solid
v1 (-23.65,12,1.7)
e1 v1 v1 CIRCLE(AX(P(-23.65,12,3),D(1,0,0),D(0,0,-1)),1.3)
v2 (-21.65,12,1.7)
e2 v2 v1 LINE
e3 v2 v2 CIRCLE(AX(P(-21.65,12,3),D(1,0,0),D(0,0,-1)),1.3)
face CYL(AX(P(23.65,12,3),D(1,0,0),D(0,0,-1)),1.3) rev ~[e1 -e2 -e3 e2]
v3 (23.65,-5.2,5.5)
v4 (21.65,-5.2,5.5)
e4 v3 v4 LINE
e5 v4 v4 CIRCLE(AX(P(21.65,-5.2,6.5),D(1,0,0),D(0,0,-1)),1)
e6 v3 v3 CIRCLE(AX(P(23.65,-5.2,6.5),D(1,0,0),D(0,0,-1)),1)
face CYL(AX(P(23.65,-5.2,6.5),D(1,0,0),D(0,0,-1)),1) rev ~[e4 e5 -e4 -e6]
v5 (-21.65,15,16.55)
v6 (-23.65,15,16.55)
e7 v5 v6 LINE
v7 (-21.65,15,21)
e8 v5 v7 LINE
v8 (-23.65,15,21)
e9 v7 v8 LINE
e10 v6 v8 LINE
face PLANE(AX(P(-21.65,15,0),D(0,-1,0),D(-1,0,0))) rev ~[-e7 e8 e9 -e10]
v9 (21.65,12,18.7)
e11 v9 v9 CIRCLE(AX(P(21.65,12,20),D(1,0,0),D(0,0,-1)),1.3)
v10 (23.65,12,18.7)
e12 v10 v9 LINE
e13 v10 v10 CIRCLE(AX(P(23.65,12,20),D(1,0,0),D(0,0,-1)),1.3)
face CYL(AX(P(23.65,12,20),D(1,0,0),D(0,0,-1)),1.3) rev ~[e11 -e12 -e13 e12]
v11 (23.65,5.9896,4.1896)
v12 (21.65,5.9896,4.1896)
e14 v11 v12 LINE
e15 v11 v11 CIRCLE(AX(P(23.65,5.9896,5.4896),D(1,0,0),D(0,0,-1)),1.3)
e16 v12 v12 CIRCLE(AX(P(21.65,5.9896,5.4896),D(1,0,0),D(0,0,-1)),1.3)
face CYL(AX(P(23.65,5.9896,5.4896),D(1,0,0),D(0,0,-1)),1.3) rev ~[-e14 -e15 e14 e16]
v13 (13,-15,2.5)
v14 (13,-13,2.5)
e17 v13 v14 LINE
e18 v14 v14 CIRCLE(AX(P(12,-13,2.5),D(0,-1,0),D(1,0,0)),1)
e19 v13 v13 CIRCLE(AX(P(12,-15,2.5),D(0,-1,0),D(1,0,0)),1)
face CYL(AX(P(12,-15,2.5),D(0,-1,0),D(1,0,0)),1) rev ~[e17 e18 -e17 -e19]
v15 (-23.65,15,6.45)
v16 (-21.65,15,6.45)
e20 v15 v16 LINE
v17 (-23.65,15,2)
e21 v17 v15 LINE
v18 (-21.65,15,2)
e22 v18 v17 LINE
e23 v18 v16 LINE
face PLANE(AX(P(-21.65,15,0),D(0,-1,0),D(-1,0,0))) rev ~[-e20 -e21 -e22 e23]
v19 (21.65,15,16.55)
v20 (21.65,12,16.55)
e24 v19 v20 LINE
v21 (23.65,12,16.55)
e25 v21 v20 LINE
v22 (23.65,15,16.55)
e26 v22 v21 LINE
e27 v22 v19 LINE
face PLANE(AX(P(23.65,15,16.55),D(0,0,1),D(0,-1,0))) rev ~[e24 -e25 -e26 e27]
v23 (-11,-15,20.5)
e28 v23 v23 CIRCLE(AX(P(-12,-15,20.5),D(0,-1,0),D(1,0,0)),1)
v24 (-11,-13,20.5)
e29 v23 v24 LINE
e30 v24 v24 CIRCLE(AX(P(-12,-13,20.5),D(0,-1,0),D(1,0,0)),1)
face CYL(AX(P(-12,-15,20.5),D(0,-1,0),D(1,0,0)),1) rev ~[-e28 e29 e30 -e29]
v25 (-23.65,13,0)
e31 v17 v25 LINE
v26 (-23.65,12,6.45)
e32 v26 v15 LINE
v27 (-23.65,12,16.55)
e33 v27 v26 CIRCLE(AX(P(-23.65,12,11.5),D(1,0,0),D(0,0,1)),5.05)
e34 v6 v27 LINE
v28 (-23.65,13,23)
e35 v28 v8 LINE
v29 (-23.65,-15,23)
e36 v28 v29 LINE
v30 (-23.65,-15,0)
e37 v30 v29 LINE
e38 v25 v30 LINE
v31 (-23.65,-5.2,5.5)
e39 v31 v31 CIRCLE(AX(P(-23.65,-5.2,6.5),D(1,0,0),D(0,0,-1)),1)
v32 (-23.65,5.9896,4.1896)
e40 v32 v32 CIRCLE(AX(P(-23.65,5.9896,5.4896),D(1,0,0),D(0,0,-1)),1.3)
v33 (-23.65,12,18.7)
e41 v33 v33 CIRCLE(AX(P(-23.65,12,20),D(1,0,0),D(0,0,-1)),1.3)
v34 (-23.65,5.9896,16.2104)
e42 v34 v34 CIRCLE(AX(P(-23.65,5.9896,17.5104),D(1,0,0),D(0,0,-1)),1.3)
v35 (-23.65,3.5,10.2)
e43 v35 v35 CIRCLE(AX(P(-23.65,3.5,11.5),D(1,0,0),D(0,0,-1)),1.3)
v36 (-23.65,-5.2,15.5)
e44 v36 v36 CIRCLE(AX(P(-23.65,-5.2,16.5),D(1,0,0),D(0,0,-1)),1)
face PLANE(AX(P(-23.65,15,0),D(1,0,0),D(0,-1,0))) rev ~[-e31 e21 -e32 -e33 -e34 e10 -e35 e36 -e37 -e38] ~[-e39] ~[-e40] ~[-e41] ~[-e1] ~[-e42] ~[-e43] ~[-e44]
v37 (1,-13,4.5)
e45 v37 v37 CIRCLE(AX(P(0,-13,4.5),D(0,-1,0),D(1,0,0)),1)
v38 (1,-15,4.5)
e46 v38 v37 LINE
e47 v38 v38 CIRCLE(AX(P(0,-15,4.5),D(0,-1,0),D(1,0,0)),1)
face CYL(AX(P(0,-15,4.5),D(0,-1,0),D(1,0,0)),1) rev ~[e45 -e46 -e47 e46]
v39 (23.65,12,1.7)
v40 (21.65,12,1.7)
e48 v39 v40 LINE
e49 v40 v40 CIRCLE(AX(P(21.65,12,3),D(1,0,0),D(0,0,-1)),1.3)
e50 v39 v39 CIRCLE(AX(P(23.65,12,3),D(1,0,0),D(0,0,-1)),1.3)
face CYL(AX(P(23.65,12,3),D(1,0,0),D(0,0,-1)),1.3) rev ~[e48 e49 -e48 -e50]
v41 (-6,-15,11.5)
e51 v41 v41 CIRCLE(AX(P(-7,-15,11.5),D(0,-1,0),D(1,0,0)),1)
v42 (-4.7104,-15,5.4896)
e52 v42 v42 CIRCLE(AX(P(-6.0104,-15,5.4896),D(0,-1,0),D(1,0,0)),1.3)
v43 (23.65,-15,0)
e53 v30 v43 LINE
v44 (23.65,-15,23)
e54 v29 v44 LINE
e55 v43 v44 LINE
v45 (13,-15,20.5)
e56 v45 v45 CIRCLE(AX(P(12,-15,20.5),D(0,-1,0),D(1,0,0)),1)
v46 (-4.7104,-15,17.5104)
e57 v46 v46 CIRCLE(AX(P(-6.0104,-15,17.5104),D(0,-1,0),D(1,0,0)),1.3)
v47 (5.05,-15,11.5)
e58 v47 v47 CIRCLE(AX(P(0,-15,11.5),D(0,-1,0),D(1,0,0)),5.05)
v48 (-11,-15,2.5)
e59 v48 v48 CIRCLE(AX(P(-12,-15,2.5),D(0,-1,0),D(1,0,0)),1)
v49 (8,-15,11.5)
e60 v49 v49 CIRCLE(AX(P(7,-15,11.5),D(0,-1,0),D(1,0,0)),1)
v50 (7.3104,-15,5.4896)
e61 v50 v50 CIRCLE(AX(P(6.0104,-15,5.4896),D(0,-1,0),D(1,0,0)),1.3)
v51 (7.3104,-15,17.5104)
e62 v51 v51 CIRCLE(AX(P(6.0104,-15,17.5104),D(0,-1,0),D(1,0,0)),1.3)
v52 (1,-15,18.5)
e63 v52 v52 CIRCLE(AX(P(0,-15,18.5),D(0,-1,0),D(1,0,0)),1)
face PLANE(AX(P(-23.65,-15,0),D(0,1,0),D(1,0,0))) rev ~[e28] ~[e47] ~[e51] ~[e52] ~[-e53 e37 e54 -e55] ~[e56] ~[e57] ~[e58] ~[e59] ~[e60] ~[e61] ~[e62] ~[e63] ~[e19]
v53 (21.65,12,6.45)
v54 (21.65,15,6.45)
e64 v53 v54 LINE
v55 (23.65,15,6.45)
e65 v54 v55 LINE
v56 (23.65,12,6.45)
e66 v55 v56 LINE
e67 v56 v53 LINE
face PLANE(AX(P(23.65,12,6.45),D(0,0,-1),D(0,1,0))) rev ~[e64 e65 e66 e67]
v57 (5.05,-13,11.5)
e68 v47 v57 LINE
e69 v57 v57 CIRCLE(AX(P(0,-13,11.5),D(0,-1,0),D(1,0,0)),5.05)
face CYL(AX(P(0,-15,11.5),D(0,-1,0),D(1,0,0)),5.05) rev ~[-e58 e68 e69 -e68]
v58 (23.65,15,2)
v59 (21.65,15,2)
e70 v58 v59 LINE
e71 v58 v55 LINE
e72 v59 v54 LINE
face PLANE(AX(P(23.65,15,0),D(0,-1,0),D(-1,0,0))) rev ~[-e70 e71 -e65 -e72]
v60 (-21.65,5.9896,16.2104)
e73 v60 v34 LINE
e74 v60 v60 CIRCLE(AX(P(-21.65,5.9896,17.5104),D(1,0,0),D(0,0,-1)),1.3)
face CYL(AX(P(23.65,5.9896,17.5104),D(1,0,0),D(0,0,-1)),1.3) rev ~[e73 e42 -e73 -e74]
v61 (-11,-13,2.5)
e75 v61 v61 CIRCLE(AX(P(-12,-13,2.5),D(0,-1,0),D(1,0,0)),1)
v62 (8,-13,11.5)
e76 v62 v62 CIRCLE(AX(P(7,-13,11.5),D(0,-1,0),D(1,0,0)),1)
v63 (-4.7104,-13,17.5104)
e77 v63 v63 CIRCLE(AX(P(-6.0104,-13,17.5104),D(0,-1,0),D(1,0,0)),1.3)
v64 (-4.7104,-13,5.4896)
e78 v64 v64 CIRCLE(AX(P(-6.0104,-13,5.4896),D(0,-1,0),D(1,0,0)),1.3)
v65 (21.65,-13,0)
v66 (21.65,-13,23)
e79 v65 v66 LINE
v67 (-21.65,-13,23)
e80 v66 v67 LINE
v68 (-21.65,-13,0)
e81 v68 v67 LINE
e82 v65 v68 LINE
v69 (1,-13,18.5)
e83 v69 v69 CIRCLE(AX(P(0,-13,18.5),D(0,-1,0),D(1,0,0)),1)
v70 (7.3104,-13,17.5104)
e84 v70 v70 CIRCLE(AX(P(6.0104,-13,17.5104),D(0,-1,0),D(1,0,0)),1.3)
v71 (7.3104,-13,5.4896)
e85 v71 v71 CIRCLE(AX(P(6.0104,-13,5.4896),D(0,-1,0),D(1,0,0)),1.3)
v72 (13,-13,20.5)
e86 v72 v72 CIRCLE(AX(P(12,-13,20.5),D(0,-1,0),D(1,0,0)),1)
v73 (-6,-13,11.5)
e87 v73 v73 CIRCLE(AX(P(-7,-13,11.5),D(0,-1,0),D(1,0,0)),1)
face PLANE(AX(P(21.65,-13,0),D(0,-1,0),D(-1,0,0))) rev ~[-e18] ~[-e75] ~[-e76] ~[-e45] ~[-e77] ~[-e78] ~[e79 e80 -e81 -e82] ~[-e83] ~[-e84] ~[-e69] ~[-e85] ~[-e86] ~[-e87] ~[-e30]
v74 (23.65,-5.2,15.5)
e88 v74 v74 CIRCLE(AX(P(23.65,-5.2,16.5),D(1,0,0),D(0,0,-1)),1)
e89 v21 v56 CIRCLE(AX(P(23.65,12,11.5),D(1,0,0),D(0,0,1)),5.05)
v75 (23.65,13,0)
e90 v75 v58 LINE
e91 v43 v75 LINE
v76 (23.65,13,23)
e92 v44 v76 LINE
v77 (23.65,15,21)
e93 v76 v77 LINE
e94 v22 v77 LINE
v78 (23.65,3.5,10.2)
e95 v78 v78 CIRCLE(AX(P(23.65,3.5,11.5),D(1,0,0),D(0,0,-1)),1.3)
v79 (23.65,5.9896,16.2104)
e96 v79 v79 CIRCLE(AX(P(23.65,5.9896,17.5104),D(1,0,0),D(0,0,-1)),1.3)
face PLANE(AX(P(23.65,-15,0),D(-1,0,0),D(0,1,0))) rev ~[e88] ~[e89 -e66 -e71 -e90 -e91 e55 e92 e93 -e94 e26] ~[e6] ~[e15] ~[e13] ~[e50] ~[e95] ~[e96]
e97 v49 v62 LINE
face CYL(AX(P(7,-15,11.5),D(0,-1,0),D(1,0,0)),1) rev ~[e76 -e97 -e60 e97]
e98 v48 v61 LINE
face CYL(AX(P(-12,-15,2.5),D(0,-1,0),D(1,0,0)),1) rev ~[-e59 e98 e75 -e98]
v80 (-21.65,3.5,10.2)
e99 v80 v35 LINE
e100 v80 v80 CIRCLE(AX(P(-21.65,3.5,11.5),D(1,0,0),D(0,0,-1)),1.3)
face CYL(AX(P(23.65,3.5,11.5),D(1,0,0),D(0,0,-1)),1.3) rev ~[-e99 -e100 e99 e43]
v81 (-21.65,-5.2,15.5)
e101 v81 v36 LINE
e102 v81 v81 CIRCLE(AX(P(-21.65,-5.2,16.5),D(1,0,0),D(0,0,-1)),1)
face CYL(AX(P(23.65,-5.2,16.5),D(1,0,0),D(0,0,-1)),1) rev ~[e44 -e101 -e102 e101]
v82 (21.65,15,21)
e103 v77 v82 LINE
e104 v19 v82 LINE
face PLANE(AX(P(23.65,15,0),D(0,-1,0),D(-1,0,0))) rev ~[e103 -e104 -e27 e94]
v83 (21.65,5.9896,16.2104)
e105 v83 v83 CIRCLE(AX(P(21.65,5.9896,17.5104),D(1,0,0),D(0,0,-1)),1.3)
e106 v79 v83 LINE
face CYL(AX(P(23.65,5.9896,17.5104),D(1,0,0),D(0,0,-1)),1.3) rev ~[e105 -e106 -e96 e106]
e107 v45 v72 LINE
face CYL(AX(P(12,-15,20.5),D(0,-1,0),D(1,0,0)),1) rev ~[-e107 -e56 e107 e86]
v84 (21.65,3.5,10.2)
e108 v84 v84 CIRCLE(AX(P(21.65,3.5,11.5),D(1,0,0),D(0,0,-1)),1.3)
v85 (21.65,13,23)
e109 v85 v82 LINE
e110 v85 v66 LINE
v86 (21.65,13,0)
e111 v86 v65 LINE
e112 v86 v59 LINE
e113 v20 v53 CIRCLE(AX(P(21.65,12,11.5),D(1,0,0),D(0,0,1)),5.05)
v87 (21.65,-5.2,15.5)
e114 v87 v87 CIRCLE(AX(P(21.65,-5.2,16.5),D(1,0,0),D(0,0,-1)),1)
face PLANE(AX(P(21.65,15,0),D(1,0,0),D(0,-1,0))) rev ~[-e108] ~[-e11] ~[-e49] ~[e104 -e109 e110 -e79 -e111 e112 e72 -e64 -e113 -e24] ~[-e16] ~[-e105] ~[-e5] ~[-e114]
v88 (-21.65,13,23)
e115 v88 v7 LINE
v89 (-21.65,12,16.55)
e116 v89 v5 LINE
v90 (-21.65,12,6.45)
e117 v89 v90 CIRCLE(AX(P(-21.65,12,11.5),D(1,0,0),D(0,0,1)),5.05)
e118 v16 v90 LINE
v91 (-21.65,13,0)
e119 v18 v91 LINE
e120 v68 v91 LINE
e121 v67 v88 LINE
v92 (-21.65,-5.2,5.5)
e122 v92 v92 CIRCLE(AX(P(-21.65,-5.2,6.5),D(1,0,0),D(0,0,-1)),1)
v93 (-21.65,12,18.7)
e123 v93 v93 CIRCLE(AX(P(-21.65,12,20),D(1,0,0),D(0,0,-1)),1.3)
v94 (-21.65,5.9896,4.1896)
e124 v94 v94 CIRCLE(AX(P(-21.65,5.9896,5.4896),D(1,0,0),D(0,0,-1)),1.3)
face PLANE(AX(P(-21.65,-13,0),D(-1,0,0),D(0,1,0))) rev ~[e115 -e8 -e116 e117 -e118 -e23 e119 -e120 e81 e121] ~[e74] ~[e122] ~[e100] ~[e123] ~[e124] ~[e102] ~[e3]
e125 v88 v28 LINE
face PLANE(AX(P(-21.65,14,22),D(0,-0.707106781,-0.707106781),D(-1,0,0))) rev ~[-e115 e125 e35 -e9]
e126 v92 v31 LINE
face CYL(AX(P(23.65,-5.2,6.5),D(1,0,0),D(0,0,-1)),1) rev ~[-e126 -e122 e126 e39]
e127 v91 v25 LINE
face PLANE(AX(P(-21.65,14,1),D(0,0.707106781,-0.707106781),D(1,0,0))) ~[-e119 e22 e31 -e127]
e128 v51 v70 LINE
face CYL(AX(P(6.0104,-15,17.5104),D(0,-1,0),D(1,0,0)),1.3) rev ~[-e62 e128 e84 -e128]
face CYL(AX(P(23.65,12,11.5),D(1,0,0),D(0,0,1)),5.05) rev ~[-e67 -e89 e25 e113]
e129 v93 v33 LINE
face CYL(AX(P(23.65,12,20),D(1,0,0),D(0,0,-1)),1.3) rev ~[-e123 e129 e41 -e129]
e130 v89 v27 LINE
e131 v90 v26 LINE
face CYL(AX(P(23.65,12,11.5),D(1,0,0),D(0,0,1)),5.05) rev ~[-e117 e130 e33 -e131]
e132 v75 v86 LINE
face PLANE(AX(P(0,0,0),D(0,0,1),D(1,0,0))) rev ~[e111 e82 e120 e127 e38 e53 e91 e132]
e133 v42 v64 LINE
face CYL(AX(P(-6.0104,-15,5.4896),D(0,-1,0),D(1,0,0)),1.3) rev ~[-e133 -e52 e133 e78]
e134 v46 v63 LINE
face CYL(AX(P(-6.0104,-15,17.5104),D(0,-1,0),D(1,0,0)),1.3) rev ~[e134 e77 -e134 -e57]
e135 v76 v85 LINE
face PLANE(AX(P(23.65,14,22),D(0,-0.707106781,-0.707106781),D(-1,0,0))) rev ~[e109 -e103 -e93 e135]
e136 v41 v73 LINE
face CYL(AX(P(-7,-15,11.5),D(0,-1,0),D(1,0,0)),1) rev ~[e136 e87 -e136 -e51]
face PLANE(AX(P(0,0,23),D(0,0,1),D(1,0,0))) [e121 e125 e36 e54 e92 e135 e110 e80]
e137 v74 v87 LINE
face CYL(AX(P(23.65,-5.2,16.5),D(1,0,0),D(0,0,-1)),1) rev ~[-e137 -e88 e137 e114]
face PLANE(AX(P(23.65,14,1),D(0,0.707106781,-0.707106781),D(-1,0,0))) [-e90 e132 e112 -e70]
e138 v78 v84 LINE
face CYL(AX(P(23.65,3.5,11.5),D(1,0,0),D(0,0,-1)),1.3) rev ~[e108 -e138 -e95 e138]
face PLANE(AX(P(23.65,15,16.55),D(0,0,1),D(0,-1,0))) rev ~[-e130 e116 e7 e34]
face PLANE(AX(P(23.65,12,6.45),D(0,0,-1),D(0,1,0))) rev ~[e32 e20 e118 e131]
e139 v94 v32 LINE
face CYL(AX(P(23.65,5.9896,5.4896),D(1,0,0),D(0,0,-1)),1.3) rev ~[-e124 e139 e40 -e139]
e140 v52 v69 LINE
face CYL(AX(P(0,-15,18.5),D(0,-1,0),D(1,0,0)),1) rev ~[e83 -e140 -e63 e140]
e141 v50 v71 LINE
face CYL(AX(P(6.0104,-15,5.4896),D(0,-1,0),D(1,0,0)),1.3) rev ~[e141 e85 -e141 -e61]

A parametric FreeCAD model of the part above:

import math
import FreeCAD as App
import Part
import Sketcher

V = App.Vector
Q = App.Units.Quantity


def edges_at(feature, points):
    """Names of the edges that pass closest to the given points."""
    edges = feature.Shape.Edges
    near = lambda p: min(range(len(edges)), key=lambda i: edges[i].distToShape(Part.Vertex(*p))[0])
    return sorted({f"Edge{near(p) + 1}" for p in points})


def add_polygon(sketch, points):
    """Adds a closed chain of lines whose ends are joined by coincident constraints."""
    first, n = sketch.GeometryCount, len(points)
    for a, b in zip(points, points[1:] + points[:1]):
        sketch.addGeometry(Part.LineSegment(App.Vector(*a, 0), App.Vector(*b, 0)), False)
    for i in range(n):
        sketch.addConstraint(Sketcher.Constraint("Coincident", first + i, 2, first + (i + 1) % n, 1))

doc = App.newDocument("Part")
body = doc.addObject("PartDesign::Body", "Body")

sketch1 = body.newObject("Sketcher::SketchObject", "Sketch")
sketch1.AttachmentSupport = (doc.getObject("XY_Plane"), [""])
sketch1.MapMode = "FlatFace"
add_polygon(sketch1, [(-21.6, 15), (-23.6, 15), (-23.6, -15), (23.6, -15), (23.6, 15), (21.6, 15), (21.6, -13), (-21.6, -13)])
sketch1.addConstraint(Sketcher.Constraint("Horizontal", 0))
sketch1.addConstraint(Sketcher.Constraint("Vertical", 1))
sketch1.addConstraint(Sketcher.Constraint("Horizontal", 2))
sketch1.addConstraint(Sketcher.Constraint("Vertical", 3))
sketch1.addConstraint(Sketcher.Constraint("Horizontal", 4))
sketch1.addConstraint(Sketcher.Constraint("Vertical", 5))
sketch1.addConstraint(Sketcher.Constraint("Horizontal", 6))
sketch1.addConstraint(Sketcher.Constraint("Vertical", 7))
sketch1.addConstraint(Sketcher.Constraint("Symmetric", 0, 2, 2, 2, -1, 1))
sketch1.addConstraint(Sketcher.Constraint("Symmetric", 4, 2, 7, 2, -2))
sketch1.addConstraint(Sketcher.Constraint("DistanceX", 0, 2, 0, 1, Q("2 mm")))
sketch1.addConstraint(Sketcher.Constraint("DistanceY", 1, 2, 1, 1, Q("30 mm")))
sketch1.addConstraint(Sketcher.Constraint("DistanceX", 6, 2, 6, 1, Q("43.3 mm")))
sketch1.addConstraint(Sketcher.Constraint("DistanceY", 2, 2, 5, 2, Q("2 mm")))
pad1 = body.newObject("PartDesign::Pad", "Pad")
pad1.Profile = sketch1
pad1.Length = 23

sketch2 = body.newObject("Sketcher::SketchObject", "Sketch001")
sketch2.AttachmentSupport = (doc.getObject("YZ_Plane"), [""])
sketch2.MapMode = "FlatFace"
sketch2.AttachmentOffset = App.Placement(V(0, 0, 23.65), App.Rotation())
sketch2.addGeometry(Part.LineSegment(V(12, 6.5, 0), V(16, 6.5, 0)), False)
sketch2.addGeometry(Part.LineSegment(V(16, 6.5, 0), V(16, 16.6, 0)), False)
sketch2.addGeometry(Part.LineSegment(V(16, 16.6, 0), V(12, 16.6, 0)), False)
sketch2.addGeometry(Part.ArcOfCircle(Part.Circle(V(12, 11.5, 0), V(0, 0, 1), 5.1), math.radians(90), math.radians(270)), False)
sketch2.addGeometry(Part.Circle(V(12, 20, 0), V(0, 0, 1), 1.3), False)
sketch2.addGeometry(Part.Circle(V(6, 17.5, 0), V(0, 0, 1), 1.3), False)
sketch2.addGeometry(Part.Circle(V(3.5, 11.5, 0), V(0, 0, 1), 1.3), False)
sketch2.addGeometry(Part.Circle(V(6, 5.5, 0), V(0, 0, 1), 1.3), False)
sketch2.addGeometry(Part.Circle(V(12, 3, 0), V(0, 0, 1), 1.3), False)
sketch2.addGeometry(Part.Circle(V(-5.2, 16.5, 0), V(0, 0, 1), 1), False)
sketch2.addGeometry(Part.Circle(V(-5.2, 6.5, 0), V(0, 0, 1), 1), False)
sketch2.addConstraint(Sketcher.Constraint("Coincident", 0, 2, 1, 1))
sketch2.addConstraint(Sketcher.Constraint("Coincident", 1, 2, 2, 1))
sketch2.addConstraint(Sketcher.Constraint("Tangent", 2, 2, 3, 1))
sketch2.addConstraint(Sketcher.Constraint("Tangent", 3, 2, 0, 1))
sketch2.addConstraint(Sketcher.Constraint("Horizontal", 0))
sketch2.addConstraint(Sketcher.Constraint("Vertical", 1))
sketch2.addConstraint(Sketcher.Constraint("Horizontal", 2))
sketch2.addConstraint(Sketcher.Constraint("Equal", 4, 5))
sketch2.addConstraint(Sketcher.Constraint("Equal", 5, 6))
sketch2.addConstraint(Sketcher.Constraint("Equal", 6, 7))
sketch2.addConstraint(Sketcher.Constraint("Equal", 7, 8))
sketch2.addConstraint(Sketcher.Constraint("Equal", 9, 10))
sketch2.addConstraint(Sketcher.Constraint("Horizontal", 3, 3, 6, 3))
sketch2.addConstraint(Sketcher.Constraint("Vertical", 3, 3, 4, 3))
sketch2.addConstraint(Sketcher.Constraint("Vertical", 5, 3, 7, 3))
sketch2.addConstraint(Sketcher.Constraint("Vertical", 4, 3, 8, 3))
sketch2.addConstraint(Sketcher.Constraint("Vertical", 9, 3, 10, 3))
sketch2.addConstraint(Sketcher.Constraint("Diameter", 9, Q("2 mm")))
sketch2.addConstraint(Sketcher.Constraint("Diameter", 4, Q("2.6 mm")))
sketch2.addConstraint(Sketcher.Constraint("Radius", 3, Q("5.05 mm")))
sketch2.addConstraint(Sketcher.Constraint("DistanceY", 6, 3, 9, 3, Q("5 mm")))
sketch2.addConstraint(Sketcher.Constraint("DistanceY", 10, 3, 6, 3, Q("5 mm")))
sketch2.addConstraint(Sketcher.Constraint("DistanceY", 3, 3, 4, 3, Q("8.5 mm")))
sketch2.addConstraint(Sketcher.Constraint("DistanceX", 6, 3, 3, 3, Q("8.5 mm")))
sketch2.addConstraint(Sketcher.Constraint("DistanceY", 8, 3, 3, 3, Q("8.5 mm")))
sketch2.addConstraint(Sketcher.Constraint("DistanceX", -1, 1, 3, 3, Q("12 mm")))
sketch2.addConstraint(Sketcher.Constraint("DistanceY", -1, 1, 4, 3, Q("20 mm")))
sketch2.addConstraint(Sketcher.Constraint("DistanceX", 9, 3, -1, 1, Q("5.2 mm")))
sketch2.addConstraint(Sketcher.Constraint("DistanceX", 0, 1, 0, 2, Q("4.0334 mm")))
sketch2.addConstraint(Sketcher.Constraint("DistanceX", -1, 1, 5, 3, Q("5.9896 mm")))
sketch2.addConstraint(Sketcher.Constraint("DistanceY", -1, 1, 5, 3, Q("17.5104 mm")))
sketch2.addConstraint(Sketcher.Constraint("DistanceY", -1, 1, 7, 3, Q("5.4896 mm")))
pocket1 = body.newObject("PartDesign::Pocket", "Pocket")
pocket1.Profile = sketch2
pocket1.Length = 100
doc.recompute()

chamfer = body.newObject("PartDesign::Chamfer", "Chamfer")
chamfer.Base = (pocket1, edges_at(pocket1, [
    (22.65, 15, 0),
    (22.65, 15, 23),
    (-22.65, 15, 23),
    (-22.65, 15, 0),
]))
chamfer.Size = 2

sketch3 = body.newObject("Sketcher::SketchObject", "Sketch002")
sketch3.AttachmentSupport = (doc.getObject("XZ_Plane"), [""])
sketch3.MapMode = "FlatFace"
sketch3.AttachmentOffset = App.Placement(V(0, 0, 15), App.Rotation())
sketch3.addGeometry(Part.Circle(V(0, 11.5, 0), V(0, 0, 1), 5), False)
sketch3.addGeometry(Part.Circle(V(0, 18.5, 0), V(0, 0, 1), 1), False)
sketch3.addGeometry(Part.Circle(V(-6, 17.5, 0), V(0, 0, 1), 1.3), False)
sketch3.addGeometry(Part.Circle(V(-7, 11.5, 0), V(0, 0, 1), 1), False)
sketch3.addGeometry(Part.Circle(V(-6, 5.5, 0), V(0, 0, 1), 1.3), False)
sketch3.addGeometry(Part.Circle(V(0, 4.5, 0), V(0, 0, 1), 1), False)
sketch3.addGeometry(Part.Circle(V(6, 5.5, 0), V(0, 0, 1), 1.3), False)
sketch3.addGeometry(Part.Circle(V(7, 11.5, 0), V(0, 0, 1), 1), False)
sketch3.addGeometry(Part.Circle(V(6, 17.5, 0), V(0, 0, 1), 1.3), False)
sketch3.addGeometry(Part.Circle(V(-12, 2.5, 0), V(0, 0, 1), 1), False)
sketch3.addGeometry(Part.Circle(V(-12, 20.5, 0), V(0, 0, 1), 1), False)
sketch3.addGeometry(Part.Circle(V(12, 2.5, 0), V(0, 0, 1), 1), False)
sketch3.addGeometry(Part.Circle(V(12, 20.5, 0), V(0, 0, 1), 1), False)
sketch3.addConstraint(Sketcher.Constraint("Equal", 1, 3))
sketch3.addConstraint(Sketcher.Constraint("Equal", 2, 4))
sketch3.addConstraint(Sketcher.Constraint("Equal", 3, 5))
sketch3.addConstraint(Sketcher.Constraint("Equal", 4, 6))
sketch3.addConstraint(Sketcher.Constraint("Equal", 5, 7))
sketch3.addConstraint(Sketcher.Constraint("Equal", 6, 8))
sketch3.addConstraint(Sketcher.Constraint("Equal", 7, 9))
sketch3.addConstraint(Sketcher.Constraint("Equal", 9, 10))
sketch3.addConstraint(Sketcher.Constraint("Equal", 10, 11))
sketch3.addConstraint(Sketcher.Constraint("Equal", 11, 12))
sketch3.addConstraint(Sketcher.Constraint("Symmetric", 4, 3, 6, 3, -2))
sketch3.addConstraint(Sketcher.Constraint("Symmetric", 3, 3, 7, 3, -2))
sketch3.addConstraint(Sketcher.Constraint("Symmetric", 2, 3, 8, 3, -2))
sketch3.addConstraint(Sketcher.Constraint("Symmetric", 9, 3, 11, 3, -2))
sketch3.addConstraint(Sketcher.Constraint("Symmetric", 10, 3, 12, 3, -2))
sketch3.addConstraint(Sketcher.Constraint("PointOnObject", 0, 3, -2))
sketch3.addConstraint(Sketcher.Constraint("PointOnObject", 1, 3, -2))
sketch3.addConstraint(Sketcher.Constraint("PointOnObject", 5, 3, -2))
sketch3.addConstraint(Sketcher.Constraint("Horizontal", 0, 3, 3, 3))
sketch3.addConstraint(Sketcher.Constraint("Vertical", 2, 3, 4, 3))
sketch3.addConstraint(Sketcher.Constraint("Vertical", 9, 3, 10, 3))
sketch3.addConstraint(Sketcher.Constraint("Diameter", 1, Q("2 mm")))
sketch3.addConstraint(Sketcher.Constraint("Diameter", 0, Q("10.1 mm")))
sketch3.addConstraint(Sketcher.Constraint("Diameter", 2, Q("2.6 mm")))
sketch3.addConstraint(Sketcher.Constraint("DistanceX", 3, 3, -1, 1, Q("7 mm")))
sketch3.addConstraint(Sketcher.Constraint("DistanceX", 9, 3, -1, 1, Q("12 mm")))
sketch3.addConstraint(Sketcher.Constraint("DistanceY", 0, 3, 1, 3, Q("7 mm")))
sketch3.addConstraint(Sketcher.Constraint("DistanceY", 5, 3, 0, 3, Q("7 mm")))
sketch3.addConstraint(Sketcher.Constraint("DistanceY", 9, 3, 3, 3, Q("9 mm")))
sketch3.addConstraint(Sketcher.Constraint("DistanceY", 3, 3, 10, 3, Q("9 mm")))
sketch3.addConstraint(Sketcher.Constraint("DistanceY", -1, 1, 0, 3, Q("11.5 mm")))
sketch3.addConstraint(Sketcher.Constraint("DistanceX", 2, 3, -1, 1, Q("6.0104 mm")))
sketch3.addConstraint(Sketcher.Constraint("DistanceY", -1, 1, 2, 3, Q("17.5104 mm")))
sketch3.addConstraint(Sketcher.Constraint("DistanceY", -1, 1, 4, 3, Q("5.4896 mm")))
pocket2 = body.newObject("PartDesign::Pocket", "Pocket001")
pocket2.Profile = sketch3
pocket2.Length = 10

doc.recompute()
